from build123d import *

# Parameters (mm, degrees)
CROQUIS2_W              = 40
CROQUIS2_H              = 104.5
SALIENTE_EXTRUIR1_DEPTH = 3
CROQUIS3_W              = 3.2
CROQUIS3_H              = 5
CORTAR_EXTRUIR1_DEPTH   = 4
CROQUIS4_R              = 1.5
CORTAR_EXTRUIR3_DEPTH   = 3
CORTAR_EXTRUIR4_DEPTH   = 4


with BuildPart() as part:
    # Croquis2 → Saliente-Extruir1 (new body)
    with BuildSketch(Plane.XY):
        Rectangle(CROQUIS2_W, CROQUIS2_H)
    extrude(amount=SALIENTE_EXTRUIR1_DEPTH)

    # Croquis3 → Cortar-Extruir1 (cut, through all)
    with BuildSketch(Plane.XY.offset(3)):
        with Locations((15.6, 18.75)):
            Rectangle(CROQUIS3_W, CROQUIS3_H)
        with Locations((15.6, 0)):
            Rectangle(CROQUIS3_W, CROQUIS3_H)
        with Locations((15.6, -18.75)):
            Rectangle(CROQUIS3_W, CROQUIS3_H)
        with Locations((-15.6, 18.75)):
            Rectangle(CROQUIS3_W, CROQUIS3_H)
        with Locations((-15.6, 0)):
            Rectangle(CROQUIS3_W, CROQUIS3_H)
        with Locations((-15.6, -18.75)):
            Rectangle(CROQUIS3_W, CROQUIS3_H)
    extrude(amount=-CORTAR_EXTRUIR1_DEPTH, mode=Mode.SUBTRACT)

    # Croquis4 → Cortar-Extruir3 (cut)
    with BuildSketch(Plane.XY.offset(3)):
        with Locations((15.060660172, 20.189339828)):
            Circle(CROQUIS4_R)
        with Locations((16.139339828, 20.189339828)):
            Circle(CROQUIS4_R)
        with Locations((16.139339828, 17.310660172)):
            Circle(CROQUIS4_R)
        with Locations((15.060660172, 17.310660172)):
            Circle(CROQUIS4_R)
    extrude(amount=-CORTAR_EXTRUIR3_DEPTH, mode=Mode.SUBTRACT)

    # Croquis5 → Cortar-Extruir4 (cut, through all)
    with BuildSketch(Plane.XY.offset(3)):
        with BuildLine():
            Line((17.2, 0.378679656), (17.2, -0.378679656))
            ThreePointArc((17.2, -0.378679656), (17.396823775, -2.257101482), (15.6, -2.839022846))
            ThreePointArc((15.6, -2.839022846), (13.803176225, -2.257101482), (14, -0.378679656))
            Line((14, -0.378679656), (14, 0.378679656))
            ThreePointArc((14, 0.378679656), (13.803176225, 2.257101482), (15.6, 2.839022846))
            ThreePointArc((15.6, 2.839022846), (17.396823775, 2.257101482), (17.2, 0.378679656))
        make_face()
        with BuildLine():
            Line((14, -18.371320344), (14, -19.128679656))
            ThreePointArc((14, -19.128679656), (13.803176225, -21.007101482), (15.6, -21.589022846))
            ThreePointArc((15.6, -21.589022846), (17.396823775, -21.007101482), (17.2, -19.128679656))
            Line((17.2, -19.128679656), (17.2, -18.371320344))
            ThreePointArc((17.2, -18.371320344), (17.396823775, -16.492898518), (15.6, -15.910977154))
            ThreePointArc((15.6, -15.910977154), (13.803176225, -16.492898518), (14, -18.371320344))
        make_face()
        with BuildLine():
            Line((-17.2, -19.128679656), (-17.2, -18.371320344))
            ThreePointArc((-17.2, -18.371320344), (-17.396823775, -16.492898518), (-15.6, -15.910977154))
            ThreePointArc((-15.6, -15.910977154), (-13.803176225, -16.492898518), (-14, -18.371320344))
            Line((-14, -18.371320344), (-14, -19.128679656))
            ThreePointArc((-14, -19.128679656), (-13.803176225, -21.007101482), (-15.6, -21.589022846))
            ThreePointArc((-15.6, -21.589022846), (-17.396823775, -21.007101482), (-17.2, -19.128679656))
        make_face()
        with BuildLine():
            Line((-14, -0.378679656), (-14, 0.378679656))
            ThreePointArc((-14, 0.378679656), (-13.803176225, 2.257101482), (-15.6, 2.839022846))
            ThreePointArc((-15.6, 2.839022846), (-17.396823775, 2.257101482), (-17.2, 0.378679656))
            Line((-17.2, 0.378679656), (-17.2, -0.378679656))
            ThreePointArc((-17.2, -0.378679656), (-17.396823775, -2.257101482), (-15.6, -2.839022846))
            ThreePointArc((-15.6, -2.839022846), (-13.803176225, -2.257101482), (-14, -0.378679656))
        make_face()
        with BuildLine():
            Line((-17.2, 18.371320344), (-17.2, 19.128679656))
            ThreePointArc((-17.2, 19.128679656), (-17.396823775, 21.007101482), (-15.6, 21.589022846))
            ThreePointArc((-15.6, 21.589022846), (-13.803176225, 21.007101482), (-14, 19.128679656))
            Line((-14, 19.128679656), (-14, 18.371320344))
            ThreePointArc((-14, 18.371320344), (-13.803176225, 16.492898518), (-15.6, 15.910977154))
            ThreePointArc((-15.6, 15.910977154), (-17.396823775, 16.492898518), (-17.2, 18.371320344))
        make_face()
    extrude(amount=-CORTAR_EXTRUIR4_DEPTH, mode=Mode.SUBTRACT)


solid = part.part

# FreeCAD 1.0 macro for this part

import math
import FreeCAD as App
import Part
import Sketcher
from FreeCAD import Vector
Q = App.Units.Quantity

doc = App.newDocument("Part")
body = doc.addObject("PartDesign::Body", "Body")

sketch1 = body.newObject("Sketcher::SketchObject", "Sketch")
sketch1.AttachmentSupport = (doc.getObject("XY_Plane"), [""])
sketch1.MapMode = "FlatFace"
sketch1.addGeometry([
    Part.LineSegment(Vector(-20, 52.25, 0), Vector(-20, -52.25, 0)),
    Part.LineSegment(Vector(-20, -52.25, 0), Vector(20, -52.25, 0)),
    Part.LineSegment(Vector(20, -52.25, 0), Vector(20, 52.25, 0)),
    Part.LineSegment(Vector(20, 52.25, 0), Vector(-20, 52.25, 0)),
], False)
sketch1.addConstraint([
    Sketcher.Constraint("Coincident", 0, 2, 1, 1),
    Sketcher.Constraint("Coincident", 1, 2, 2, 1),
    Sketcher.Constraint("Coincident", 2, 2, 3, 1),
    Sketcher.Constraint("Coincident", 3, 2, 0, 1),
    Sketcher.Constraint("Vertical", 0),
    Sketcher.Constraint("Horizontal", 1),
    Sketcher.Constraint("Vertical", 2),
    Sketcher.Constraint("Horizontal", 3),
    Sketcher.Constraint("Symmetric", 0, 2, 2, 2, -1, 1),
    Sketcher.Constraint("DistanceX", 1, 1, 1, 2, Q("40 mm")),
    Sketcher.Constraint("DistanceY", 0, 2, 0, 1, Q("104.5 mm")),
])
pad1 = body.newObject("PartDesign::Pad", "Pad")
pad1.Profile = sketch1
pad1.Length = 3

sketch2 = body.newObject("Sketcher::SketchObject", "Sketch001")
sketch2.AttachmentSupport = (doc.getObject("XY_Plane"), [""])
sketch2.MapMode = "FlatFace"
sketch2.AttachmentOffset = App.Placement(Vector(0, 0, 3), App.Rotation())
sketch2.addGeometry([
    Part.LineSegment(Vector(14, 21.25, 0), Vector(14, 16.25, 0)),
    Part.LineSegment(Vector(14, 16.25, 0), Vector(17.2, 16.25, 0)),
    Part.LineSegment(Vector(17.2, 16.25, 0), Vector(17.2, 21.25, 0)),
    Part.LineSegment(Vector(17.2, 21.25, 0), Vector(14, 21.25, 0)),
    Part.LineSegment(Vector(14, 2.5, 0), Vector(14, -2.5, 0)),
    Part.LineSegment(Vector(14, -2.5, 0), Vector(17.2, -2.5, 0)),
    Part.LineSegment(Vector(17.2, -2.5, 0), Vector(17.2, 2.5, 0)),
    Part.LineSegment(Vector(17.2, 2.5, 0), Vector(14, 2.5, 0)),
    Part.LineSegment(Vector(14, -16.25, 0), Vector(14, -21.25, 0)),
    Part.LineSegment(Vector(14, -21.25, 0), Vector(17.2, -21.25, 0)),
    Part.LineSegment(Vector(17.2, -21.25, 0), Vector(17.2, -16.25, 0)),
    Part.LineSegment(Vector(17.2, -16.25, 0), Vector(14, -16.25, 0)),
    Part.LineSegment(Vector(-17.2, 21.25, 0), Vector(-17.2, 16.25, 0)),
    Part.LineSegment(Vector(-17.2, 16.25, 0), Vector(-14, 16.25, 0)),
    Part.LineSegment(Vector(-14, 16.25, 0), Vector(-14, 21.25, 0)),
    Part.LineSegment(Vector(-14, 21.25, 0), Vector(-17.2, 21.25, 0)),
    Part.LineSegment(Vector(-17.2, 2.5, 0), Vector(-17.2, -2.5, 0)),
    Part.LineSegment(Vector(-17.2, -2.5, 0), Vector(-14, -2.5, 0)),
    Part.LineSegment(Vector(-14, -2.5, 0), Vector(-14, 2.5, 0)),
    Part.LineSegment(Vector(-14, 2.5, 0), Vector(-17.2, 2.5, 0)),
    Part.LineSegment(Vector(-17.2, -16.25, 0), Vector(-17.2, -21.25, 0)),
    Part.LineSegment(Vector(-17.2, -21.25, 0), Vector(-14, -21.25, 0)),
    Part.LineSegment(Vector(-14, -21.25, 0), Vector(-14, -16.25, 0)),
    Part.LineSegment(Vector(-14, -16.25, 0), Vector(-17.2, -16.25, 0)),
], False)
sketch2.addConstraint([
    Sketcher.Constraint("Coincident", 0, 2, 1, 1),
    Sketcher.Constraint("Coincident", 1, 2, 2, 1),
    Sketcher.Constraint("Coincident", 2, 2, 3, 1),
    Sketcher.Constraint("Coincident", 3, 2, 0, 1),
    Sketcher.Constraint("Coincident", 4, 2, 5, 1),
    Sketcher.Constraint("Coincident", 5, 2, 6, 1),
    Sketcher.Constraint("Coincident", 6, 2, 7, 1),
    Sketcher.Constraint("Coincident", 7, 2, 4, 1),
    Sketcher.Constraint("Coincident", 8, 2, 9, 1),
    Sketcher.Constraint("Coincident", 9, 2, 10, 1),
    Sketcher.Constraint("Coincident", 10, 2, 11, 1),
    Sketcher.Constraint("Coincident", 11, 2, 8, 1),
    Sketcher.Constraint("Coincident", 12, 2, 13, 1),
    Sketcher.Constraint("Coincident", 13, 2, 14, 1),
    Sketcher.Constraint("Coincident", 14, 2, 15, 1),
    Sketcher.Constraint("Coincident", 15, 2, 12, 1),
    Sketcher.Constraint("Coincident", 16, 2, 17, 1),
    Sketcher.Constraint("Coincident", 17, 2, 18, 1),
    Sketcher.Constraint("Coincident", 18, 2, 19, 1),
    Sketcher.Constraint("Coincident", 19, 2, 16, 1),
    Sketcher.Constraint("Coincident", 20, 2, 21, 1),
    Sketcher.Constraint("Coincident", 21, 2, 22, 1),
    Sketcher.Constraint("Coincident", 22, 2, 23, 1),
    Sketcher.Constraint("Coincident", 23, 2, 20, 1),
    Sketcher.Constraint("Vertical", 0),
    Sketcher.Constraint("Horizontal", 1),
    Sketcher.Constraint("Vertical", 2),
    Sketcher.Constraint("Horizontal", 3),
    Sketcher.Constraint("Vertical", 4),
    Sketcher.Constraint("Horizontal", 5),
    Sketcher.Constraint("Vertical", 6),
    Sketcher.Constraint("Horizontal", 7),
    Sketcher.Constraint("Vertical", 8),
    Sketcher.Constraint("Horizontal", 9),
    Sketcher.Constraint("Vertical", 10),
    Sketcher.Constraint("Horizontal", 11),
    Sketcher.Constraint("Vertical", 12),
    Sketcher.Constraint("Horizontal", 13),
    Sketcher.Constraint("Vertical", 14),
    Sketcher.Constraint("Horizontal", 15),
    Sketcher.Constraint("Vertical", 16),
    Sketcher.Constraint("Horizontal", 17),
    Sketcher.Constraint("Vertical", 18),
    Sketcher.Constraint("Horizontal", 19),
    Sketcher.Constraint("Vertical", 20),
    Sketcher.Constraint("Horizontal", 21),
    Sketcher.Constraint("Vertical", 22),
    Sketcher.Constraint("Horizontal", 23),
    Sketcher.Constraint("Symmetric", 10, 2, 12, 2, -1, 1),
    Sketcher.Constraint("Symmetric", 8, 2, 14, 2, -1, 1),
    Sketcher.Constraint("Symmetric", 6, 2, 16, 2, -1, 1),
    Sketcher.Constraint("Symmetric", 4, 2, 18, 2, -1, 1),
    Sketcher.Constraint("Symmetric", 2, 2, 20, 2, -1, 1),
    Sketcher.Constraint("Symmetric", 0, 2, 22, 2, -1, 1),
    Sketcher.Constraint("Symmetric", 1, 2, 12, 2, -2),
    Sketcher.Constraint("Symmetric", 3, 2, 14, 2, -2),
    Sketcher.Constraint("Horizontal", 5, 2, 16, 2),
    Sketcher.Constraint("Vertical", 3, 2, 4, 2),
    Sketcher.Constraint("Vertical", 2, 2, 5, 2),
    Sketcher.Constraint("Equal", 2, 4),
    Sketcher.Constraint("DistanceY", 0, 2, 0, 1, Q("5 mm")),
    Sketcher.Constraint("DistanceX", 1, 1, 1, 2, Q("3.2 mm")),
    Sketcher.Constraint("DistanceX", -1, 1, 0, 2, Q("14 mm")),
    Sketcher.Constraint("DistanceY", 8, 2, 0, 2, Q("37.5 mm")),
])
pocket1 = body.newObject("PartDesign::Pocket", "Pocket")
pocket1.Profile = sketch2
pocket1.Type = "ThroughAll"

sketch3 = body.newObject("Sketcher::SketchObject", "Sketch002")
sketch3.AttachmentSupport = (doc.getObject("XY_Plane"), [""])
sketch3.MapMode = "FlatFace"
sketch3.AttachmentOffset = App.Placement(Vector(0, 0, 3), App.Rotation())
sketch3.addGeometry([
    Part.ArcOfCircle(Part.Circle(Vector(16.13934, 20.18934, 0), Vector(0, 0, 1), 1.5), math.radians(-73.649977), math.radians(111.07317)),
    Part.ArcOfCircle(Part.Circle(Vector(15.06066, 20.18934, 0), Vector(0, 0, 1), 1.5), math.radians(68.92683), math.radians(253.649977)),
    Part.ArcOfCircle(Part.Circle(Vector(15.06066, 17.31066, 0), Vector(0, 0, 1), 1.5), math.radians(106.350023), math.radians(291.07317)),
    Part.ArcOfCircle(Part.Circle(Vector(16.13934, 17.31066, 0), Vector(0, 0, 1), 1.5), math.radians(-111.07317), math.radians(73.649977)),
    Part.ArcOfCircle(Part.Circle(Vector(16.13934, 17.31066, 0), Vector(0, 0, 1), 1.5), math.radians(106.350023), math.radians(111.07317)),
    Part.ArcOfCircle(Part.Circle(Vector(15.06066, 17.31066, 0), Vector(0, 0, 1), 1.5), math.radians(68.92683), math.radians(73.649977)),
    Part.ArcOfCircle(Part.Circle(Vector(15.06066, 20.18934, 0), Vector(0, 0, 1), 1.5), math.radians(-73.649977), math.radians(-68.92683)),
    Part.ArcOfCircle(Part.Circle(Vector(16.13934, 20.18934, 0), Vector(0, 0, 1), 1.5), math.radians(-111.07317), math.radians(-106.350023)),
], False)
sketch3.addConstraint([
    Sketcher.Constraint("Coincident", 0, 2, 1, 1),
    Sketcher.Constraint("Coincident", 1, 2, 2, 1),
    Sketcher.Constraint("Coincident", 2, 2, 3, 1),
    Sketcher.Constraint("Coincident", 3, 2, 0, 1),
    Sketcher.Constraint("Coincident", 4, 2, 5, 1),
    Sketcher.Constraint("Coincident", 5, 2, 6, 1),
    Sketcher.Constraint("Coincident", 6, 2, 7, 1),
    Sketcher.Constraint("Coincident", 7, 2, 4, 1),
    Sketcher.Constraint("Coincident", 4, 3, 3, 3),
    Sketcher.Constraint("Coincident", 5, 3, 2, 3),
    Sketcher.Constraint("Coincident", 6, 3, 1, 3),
    Sketcher.Constraint("Coincident", 7, 3, 0, 3),
    Sketcher.Constraint("Equal", 0, 1),
    Sketcher.Constraint("Equal", 1, 2),
    Sketcher.Constraint("Equal", 2, 3),
    Sketcher.Constraint("Equal", 3, 4),
    Sketcher.Constraint("Equal", 4, 5),
    Sketcher.Constraint("Equal", 5, 6),
    Sketcher.Constraint("Equal", 6, 7),
    Sketcher.Constraint("Horizontal", 0, 3, 1, 3),
    Sketcher.Constraint("Horizontal", 2, 3, 3, 3),
    Sketcher.Constraint("Horizontal", 1, 2, 3, 2),
    Sketcher.Constraint("Horizontal", 3, 2, 5, 2),
    Sketcher.Constraint("Radius", 0, Q("1.5 mm")),
    Sketcher.Constraint("DistanceX", -1, 1, 0, 2, Q("15.6 mm")),
    Sketcher.Constraint("DistanceY", -1, 1, 1, 2, Q("18.75 mm")),
    Sketcher.Constraint("DistanceX", -1, 1, 0, 3, Q("16.13934 mm")),
    Sketcher.Constraint("DistanceY", -1, 1, 0, 3, Q("20.18934 mm")),
])
pocket2 = body.newObject("PartDesign::Pocket", "Pocket001")
pocket2.Profile = sketch3
pocket2.Length = 3

sketch4 = body.newObject("Sketcher::SketchObject", "Sketch003")
sketch4.AttachmentSupport = (doc.getObject("XY_Plane"), [""])
sketch4.MapMode = "FlatFace"
sketch4.AttachmentOffset = App.Placement(Vector(0, 0, 3), App.Rotation())
sketch4.addGeometry([
    Part.LineSegment(Vector(17.2, -0.37868, 0), Vector(17.2, 0.37868, 0)),
    Part.ArcOfCircle(Part.Circle(Vector(16.13934, 1.43934, 0), Vector(0, 0, 1), 1.5), math.radians(-45), math.radians(111.07317)),
    Part.ArcOfCircle(Part.Circle(Vector(15.06066, 1.43934, 0), Vector(0, 0, 1), 1.5), math.radians(68.92683), math.radians(225)),
    Part.LineSegment(Vector(14, 0.37868, 0), Vector(14, -0.37868, 0)),
    Part.ArcOfCircle(Part.Circle(Vector(15.06066, -1.43934, 0), Vector(0, 0, 1), 1.5), math.radians(135), math.radians(291.07317)),
    Part.ArcOfCircle(Part.Circle(Vector(16.13934, -1.43934, 0), Vector(0, 0, 1), 1.5), math.radians(-111.07317), math.radians(45)),
    Part.LineSegment(Vector(14, -18.37132, 0), Vector(14, -19.12868, 0)),
    Part.ArcOfCircle(Part.Circle(Vector(15.06066, -20.18934, 0), Vector(0, 0, 1), 1.5), math.radians(135), math.radians(291.07317)),
    Part.ArcOfCircle(Part.Circle(Vector(16.13934, -20.18934, 0), Vector(0, 0, 1), 1.5), math.radians(-111.07317), math.radians(45)),
    Part.LineSegment(Vector(17.2, -19.12868, 0), Vector(17.2, -18.37132, 0)),
    Part.ArcOfCircle(Part.Circle(Vector(16.13934, -17.31066, 0), Vector(0, 0, 1), 1.5), math.radians(-45), math.radians(111.07317)),
    Part.ArcOfCircle(Part.Circle(Vector(15.06066, -17.31066, 0), Vector(0, 0, 1), 1.5), math.radians(68.92683), math.radians(225)),
    Part.LineSegment(Vector(-17.2, -18.37132, 0), Vector(-17.2, -19.12868, 0)),
    Part.ArcOfCircle(Part.Circle(Vector(-16.13934, -20.18934, 0), Vector(0, 0, 1), 1.5), math.radians(135), math.radians(291.07317)),
    Part.ArcOfCircle(Part.Circle(Vector(-15.06066, -20.18934, 0), Vector(0, 0, 1), 1.5), math.radians(-111.07317), math.radians(45)),
    Part.LineSegment(Vector(-14, -19.12868, 0), Vector(-14, -18.37132, 0)),
    Part.ArcOfCircle(Part.Circle(Vector(-15.06066, -17.31066, 0), Vector(0, 0, 1), 1.5), math.radians(-45), math.radians(111.07317)),
    Part.ArcOfCircle(Part.Circle(Vector(-16.13934, -17.31066, 0), Vector(0, 0, 1), 1.5), math.radians(68.92683), math.radians(225)),
    Part.LineSegment(Vector(-14, -0.37868, 0), Vector(-14, 0.37868, 0)),
    Part.ArcOfCircle(Part.Circle(Vector(-15.06066, 1.43934, 0), Vector(0, 0, 1), 1.5), math.radians(-45), math.radians(111.07317)),
    Part.ArcOfCircle(Part.Circle(Vector(-16.13934, 1.43934, 0), Vector(0, 0, 1), 1.5), math.radians(68.92683), math.radians(225)),
    Part.LineSegment(Vector(-17.2, 0.37868, 0), Vector(-17.2, -0.37868, 0)),
    Part.ArcOfCircle(Part.Circle(Vector(-16.13934, -1.43934, 0), Vector(0, 0, 1), 1.5), math.radians(135), math.radians(291.07317)),
    Part.ArcOfCircle(Part.Circle(Vector(-15.06066, -1.43934, 0), Vector(0, 0, 1), 1.5), math.radians(-111.07317), math.radians(45)),
    Part.LineSegment(Vector(-17.2, 19.12868, 0), Vector(-17.2, 18.37132, 0)),
    Part.ArcOfCircle(Part.Circle(Vector(-16.13934, 17.31066, 0), Vector(0, 0, 1), 1.5), math.radians(135), math.radians(291.07317)),
    Part.ArcOfCircle(Part.Circle(Vector(-15.06066, 17.31066, 0), Vector(0, 0, 1), 1.5), math.radians(-111.07317), math.radians(45)),
    Part.LineSegment(Vector(-14, 18.37132, 0), Vector(-14, 19.12868, 0)),
    Part.ArcOfCircle(Part.Circle(Vector(-15.06066, 20.18934, 0), Vector(0, 0, 1), 1.5), math.radians(-45), math.radians(111.07317)),
    Part.ArcOfCircle(Part.Circle(Vector(-16.13934, 20.18934, 0), Vector(0, 0, 1), 1.5), math.radians(68.92683), math.radians(225)),
], False)
sketch4.addConstraint([
    Sketcher.Constraint("Coincident", 0, 2, 1, 1),
    Sketcher.Constraint("Coincident", 1, 2, 2, 1),
    Sketcher.Constraint("Coincident", 2, 2, 3, 1),
    Sketcher.Constraint("Coincident", 3, 2, 4, 1),
    Sketcher.Constraint("Coincident", 4, 2, 5, 1),
    Sketcher.Constraint("Coincident", 5, 2, 0, 1),
    Sketcher.Constraint("Coincident", 6, 2, 7, 1),
    Sketcher.Constraint("Coincident", 7, 2, 8, 1),
    Sketcher.Constraint("Coincident", 8, 2, 9, 1),
    Sketcher.Constraint("Coincident", 9, 2, 10, 1),
    Sketcher.Constraint("Coincident", 10, 2, 11, 1),
    Sketcher.Constraint("Coincident", 11, 2, 6, 1),
    Sketcher.Constraint("Coincident", 12, 2, 13, 1),
    Sketcher.Constraint("Coincident", 13, 2, 14, 1),
    Sketcher.Constraint("Coincident", 14, 2, 15, 1),
    Sketcher.Constraint("Coincident", 15, 2, 16, 1),
    Sketcher.Constraint("Coincident", 16, 2, 17, 1),
    Sketcher.Constraint("Coincident", 17, 2, 12, 1),
    Sketcher.Constraint("Coincident", 18, 2, 19, 1),
    Sketcher.Constraint("Coincident", 19, 2, 20, 1),
    Sketcher.Constraint("Coincident", 20, 2, 21, 1),
    Sketcher.Constraint("Coincident", 21, 2, 22, 1),
    Sketcher.Constraint("Coincident", 22, 2, 23, 1),
    Sketcher.Constraint("Coincident", 23, 2, 18, 1),
    Sketcher.Constraint("Coincident", 24, 2, 25, 1),
    Sketcher.Constraint("Coincident", 25, 2, 26, 1),
    Sketcher.Constraint("Coincident", 26, 2, 27, 1),
    Sketcher.Constraint("Coincident", 27, 2, 28, 1),
    Sketcher.Constraint("Coincident", 28, 2, 29, 1),
    Sketcher.Constraint("Coincident", 29, 2, 24, 1),
    Sketcher.Constraint("Vertical", 0),
    Sketcher.Constraint("Vertical", 3),
    Sketcher.Constraint("Vertical", 6),
    Sketcher.Constraint("Vertical", 9),
    Sketcher.Constraint("Vertical", 12),
    Sketcher.Constraint("Vertical", 15),
    Sketcher.Constraint("Vertical", 18),
    Sketcher.Constraint("Vertical", 21),
    Sketcher.Constraint("Vertical", 24),
    Sketcher.Constraint("Vertical", 27),
    Sketcher.Constraint("Equal", 1, 2),
    Sketcher.Constraint("Equal", 2, 4),
    Sketcher.Constraint("Equal", 4, 5),
    Sketcher.Constraint("Equal", 5, 7),
    Sketcher.Constraint("Equal", 7, 8),
    Sketcher.Constraint("Equal", 8, 10),
    Sketcher.Constraint("Equal", 10, 11),
    Sketcher.Constraint("Equal", 11, 13),
    Sketcher.Constraint("Equal", 13, 14),
    Sketcher.Constraint("Equal", 14, 16),
    Sketcher.Constraint("Equal", 16, 17),
    Sketcher.Constraint("Equal", 17, 19),
    Sketcher.Constraint("Equal", 19, 20),
    Sketcher.Constraint("Equal", 20, 22),
    Sketcher.Constraint("Equal", 22, 23),
    Sketcher.Constraint("Equal", 23, 25),
    Sketcher.Constraint("Equal", 25, 26),
    Sketcher.Constraint("Equal", 26, 28),
    Sketcher.Constraint("Equal", 28, 29),
    Sketcher.Constraint("Symmetric", 4, 3, 19, 3, -1, 1),
    Sketcher.Constraint("Symmetric", 5, 3, 20, 3, -1, 1),
    Sketcher.Constraint("Symmetric", 1, 3, 22, 3, -1, 1),
    Sketcher.Constraint("Symmetric", 2, 3, 23, 3, -1, 1),
    Sketcher.Constraint("Symmetric", 10, 3, 25, 3, -1, 1),
    Sketcher.Constraint("Symmetric", 11, 3, 26, 3, -1, 1),
    Sketcher.Constraint("Symmetric", 7, 3, 28, 3, -1, 1),
    Sketcher.Constraint("Symmetric", 8, 3, 29, 3, -1, 1),
    Sketcher.Constraint("Symmetric", 8, 3, 13, 3, -2),
    Sketcher.Constraint("Symmetric", 7, 3, 14, 3, -2),
    Sketcher.Constraint("Symmetric", 11, 3, 16, 3, -2),
    Sketcher.Constraint("Symmetric", 10, 3, 17, 3, -2),
    Sketcher.Constraint("Symmetric", 2, 3, 19, 3, -2),
    Sketcher.Constraint("Symmetric", 1, 3, 20, 3, -2),
    Sketcher.Constraint("Horizontal", 1, 3, 2, 3),
    Sketcher.Constraint("Horizontal", 7, 3, 8, 3),
    Sketcher.Constraint("Horizontal", 10, 3, 11, 3),
    Sketcher.Constraint("Horizontal", 0, 2, 2, 2),
    Sketcher.Constraint("Horizontal", 6, 2, 8, 2),
    Sketcher.Constraint("Horizontal", 9, 2, 11, 2),
    Sketcher.Constraint("Horizontal", 8, 2, 12, 2),
    Sketcher.Constraint("Horizontal", 12, 2, 14, 2),
    Sketcher.Constraint("Horizontal", 2, 2, 18, 2),
    Sketcher.Constraint("Horizontal", 18, 2, 20, 2),
    Sketcher.Constraint("Horizontal", 24, 2, 26, 2),
    Sketcher.Constraint("Vertical", 4, 3, 7, 3),
    Sketcher.Constraint("Vertical", 5, 3, 8, 3),
    Sketcher.Constraint("Vertical", 8, 3, 10, 3),
    Sketcher.Constraint("Vertical", 3, 2, 6, 2),
    Sketcher.Constraint("Vertical", 21, 2, 24, 2),
    Sketcher.Constraint("Equal", 3, 6),
    Sketcher.Constraint("Radius", 1, Q("1.5 mm")),
    Sketcher.Constraint("DistanceX", -1, 1, 2, 2, Q("14 mm")),
    Sketcher.Constraint("DistanceX", -1, 1, 0, 2, Q("17.2 mm")),
    Sketcher.Constraint("DistanceY", 7, 3, 4, 3, Q("18.75 mm")),
    Sketcher.Constraint("DistanceY", 0, 1, 0, 2, Q("0.757359 mm")),
    Sketcher.Constraint("DistanceX", -1, 1, 1, 3, Q("16.13934 mm")),
])
pocket3 = body.newObject("PartDesign::Pocket", "Pocket002")
pocket3.Profile = sketch4
pocket3.Type = "ThroughAll"

doc.recompute()
